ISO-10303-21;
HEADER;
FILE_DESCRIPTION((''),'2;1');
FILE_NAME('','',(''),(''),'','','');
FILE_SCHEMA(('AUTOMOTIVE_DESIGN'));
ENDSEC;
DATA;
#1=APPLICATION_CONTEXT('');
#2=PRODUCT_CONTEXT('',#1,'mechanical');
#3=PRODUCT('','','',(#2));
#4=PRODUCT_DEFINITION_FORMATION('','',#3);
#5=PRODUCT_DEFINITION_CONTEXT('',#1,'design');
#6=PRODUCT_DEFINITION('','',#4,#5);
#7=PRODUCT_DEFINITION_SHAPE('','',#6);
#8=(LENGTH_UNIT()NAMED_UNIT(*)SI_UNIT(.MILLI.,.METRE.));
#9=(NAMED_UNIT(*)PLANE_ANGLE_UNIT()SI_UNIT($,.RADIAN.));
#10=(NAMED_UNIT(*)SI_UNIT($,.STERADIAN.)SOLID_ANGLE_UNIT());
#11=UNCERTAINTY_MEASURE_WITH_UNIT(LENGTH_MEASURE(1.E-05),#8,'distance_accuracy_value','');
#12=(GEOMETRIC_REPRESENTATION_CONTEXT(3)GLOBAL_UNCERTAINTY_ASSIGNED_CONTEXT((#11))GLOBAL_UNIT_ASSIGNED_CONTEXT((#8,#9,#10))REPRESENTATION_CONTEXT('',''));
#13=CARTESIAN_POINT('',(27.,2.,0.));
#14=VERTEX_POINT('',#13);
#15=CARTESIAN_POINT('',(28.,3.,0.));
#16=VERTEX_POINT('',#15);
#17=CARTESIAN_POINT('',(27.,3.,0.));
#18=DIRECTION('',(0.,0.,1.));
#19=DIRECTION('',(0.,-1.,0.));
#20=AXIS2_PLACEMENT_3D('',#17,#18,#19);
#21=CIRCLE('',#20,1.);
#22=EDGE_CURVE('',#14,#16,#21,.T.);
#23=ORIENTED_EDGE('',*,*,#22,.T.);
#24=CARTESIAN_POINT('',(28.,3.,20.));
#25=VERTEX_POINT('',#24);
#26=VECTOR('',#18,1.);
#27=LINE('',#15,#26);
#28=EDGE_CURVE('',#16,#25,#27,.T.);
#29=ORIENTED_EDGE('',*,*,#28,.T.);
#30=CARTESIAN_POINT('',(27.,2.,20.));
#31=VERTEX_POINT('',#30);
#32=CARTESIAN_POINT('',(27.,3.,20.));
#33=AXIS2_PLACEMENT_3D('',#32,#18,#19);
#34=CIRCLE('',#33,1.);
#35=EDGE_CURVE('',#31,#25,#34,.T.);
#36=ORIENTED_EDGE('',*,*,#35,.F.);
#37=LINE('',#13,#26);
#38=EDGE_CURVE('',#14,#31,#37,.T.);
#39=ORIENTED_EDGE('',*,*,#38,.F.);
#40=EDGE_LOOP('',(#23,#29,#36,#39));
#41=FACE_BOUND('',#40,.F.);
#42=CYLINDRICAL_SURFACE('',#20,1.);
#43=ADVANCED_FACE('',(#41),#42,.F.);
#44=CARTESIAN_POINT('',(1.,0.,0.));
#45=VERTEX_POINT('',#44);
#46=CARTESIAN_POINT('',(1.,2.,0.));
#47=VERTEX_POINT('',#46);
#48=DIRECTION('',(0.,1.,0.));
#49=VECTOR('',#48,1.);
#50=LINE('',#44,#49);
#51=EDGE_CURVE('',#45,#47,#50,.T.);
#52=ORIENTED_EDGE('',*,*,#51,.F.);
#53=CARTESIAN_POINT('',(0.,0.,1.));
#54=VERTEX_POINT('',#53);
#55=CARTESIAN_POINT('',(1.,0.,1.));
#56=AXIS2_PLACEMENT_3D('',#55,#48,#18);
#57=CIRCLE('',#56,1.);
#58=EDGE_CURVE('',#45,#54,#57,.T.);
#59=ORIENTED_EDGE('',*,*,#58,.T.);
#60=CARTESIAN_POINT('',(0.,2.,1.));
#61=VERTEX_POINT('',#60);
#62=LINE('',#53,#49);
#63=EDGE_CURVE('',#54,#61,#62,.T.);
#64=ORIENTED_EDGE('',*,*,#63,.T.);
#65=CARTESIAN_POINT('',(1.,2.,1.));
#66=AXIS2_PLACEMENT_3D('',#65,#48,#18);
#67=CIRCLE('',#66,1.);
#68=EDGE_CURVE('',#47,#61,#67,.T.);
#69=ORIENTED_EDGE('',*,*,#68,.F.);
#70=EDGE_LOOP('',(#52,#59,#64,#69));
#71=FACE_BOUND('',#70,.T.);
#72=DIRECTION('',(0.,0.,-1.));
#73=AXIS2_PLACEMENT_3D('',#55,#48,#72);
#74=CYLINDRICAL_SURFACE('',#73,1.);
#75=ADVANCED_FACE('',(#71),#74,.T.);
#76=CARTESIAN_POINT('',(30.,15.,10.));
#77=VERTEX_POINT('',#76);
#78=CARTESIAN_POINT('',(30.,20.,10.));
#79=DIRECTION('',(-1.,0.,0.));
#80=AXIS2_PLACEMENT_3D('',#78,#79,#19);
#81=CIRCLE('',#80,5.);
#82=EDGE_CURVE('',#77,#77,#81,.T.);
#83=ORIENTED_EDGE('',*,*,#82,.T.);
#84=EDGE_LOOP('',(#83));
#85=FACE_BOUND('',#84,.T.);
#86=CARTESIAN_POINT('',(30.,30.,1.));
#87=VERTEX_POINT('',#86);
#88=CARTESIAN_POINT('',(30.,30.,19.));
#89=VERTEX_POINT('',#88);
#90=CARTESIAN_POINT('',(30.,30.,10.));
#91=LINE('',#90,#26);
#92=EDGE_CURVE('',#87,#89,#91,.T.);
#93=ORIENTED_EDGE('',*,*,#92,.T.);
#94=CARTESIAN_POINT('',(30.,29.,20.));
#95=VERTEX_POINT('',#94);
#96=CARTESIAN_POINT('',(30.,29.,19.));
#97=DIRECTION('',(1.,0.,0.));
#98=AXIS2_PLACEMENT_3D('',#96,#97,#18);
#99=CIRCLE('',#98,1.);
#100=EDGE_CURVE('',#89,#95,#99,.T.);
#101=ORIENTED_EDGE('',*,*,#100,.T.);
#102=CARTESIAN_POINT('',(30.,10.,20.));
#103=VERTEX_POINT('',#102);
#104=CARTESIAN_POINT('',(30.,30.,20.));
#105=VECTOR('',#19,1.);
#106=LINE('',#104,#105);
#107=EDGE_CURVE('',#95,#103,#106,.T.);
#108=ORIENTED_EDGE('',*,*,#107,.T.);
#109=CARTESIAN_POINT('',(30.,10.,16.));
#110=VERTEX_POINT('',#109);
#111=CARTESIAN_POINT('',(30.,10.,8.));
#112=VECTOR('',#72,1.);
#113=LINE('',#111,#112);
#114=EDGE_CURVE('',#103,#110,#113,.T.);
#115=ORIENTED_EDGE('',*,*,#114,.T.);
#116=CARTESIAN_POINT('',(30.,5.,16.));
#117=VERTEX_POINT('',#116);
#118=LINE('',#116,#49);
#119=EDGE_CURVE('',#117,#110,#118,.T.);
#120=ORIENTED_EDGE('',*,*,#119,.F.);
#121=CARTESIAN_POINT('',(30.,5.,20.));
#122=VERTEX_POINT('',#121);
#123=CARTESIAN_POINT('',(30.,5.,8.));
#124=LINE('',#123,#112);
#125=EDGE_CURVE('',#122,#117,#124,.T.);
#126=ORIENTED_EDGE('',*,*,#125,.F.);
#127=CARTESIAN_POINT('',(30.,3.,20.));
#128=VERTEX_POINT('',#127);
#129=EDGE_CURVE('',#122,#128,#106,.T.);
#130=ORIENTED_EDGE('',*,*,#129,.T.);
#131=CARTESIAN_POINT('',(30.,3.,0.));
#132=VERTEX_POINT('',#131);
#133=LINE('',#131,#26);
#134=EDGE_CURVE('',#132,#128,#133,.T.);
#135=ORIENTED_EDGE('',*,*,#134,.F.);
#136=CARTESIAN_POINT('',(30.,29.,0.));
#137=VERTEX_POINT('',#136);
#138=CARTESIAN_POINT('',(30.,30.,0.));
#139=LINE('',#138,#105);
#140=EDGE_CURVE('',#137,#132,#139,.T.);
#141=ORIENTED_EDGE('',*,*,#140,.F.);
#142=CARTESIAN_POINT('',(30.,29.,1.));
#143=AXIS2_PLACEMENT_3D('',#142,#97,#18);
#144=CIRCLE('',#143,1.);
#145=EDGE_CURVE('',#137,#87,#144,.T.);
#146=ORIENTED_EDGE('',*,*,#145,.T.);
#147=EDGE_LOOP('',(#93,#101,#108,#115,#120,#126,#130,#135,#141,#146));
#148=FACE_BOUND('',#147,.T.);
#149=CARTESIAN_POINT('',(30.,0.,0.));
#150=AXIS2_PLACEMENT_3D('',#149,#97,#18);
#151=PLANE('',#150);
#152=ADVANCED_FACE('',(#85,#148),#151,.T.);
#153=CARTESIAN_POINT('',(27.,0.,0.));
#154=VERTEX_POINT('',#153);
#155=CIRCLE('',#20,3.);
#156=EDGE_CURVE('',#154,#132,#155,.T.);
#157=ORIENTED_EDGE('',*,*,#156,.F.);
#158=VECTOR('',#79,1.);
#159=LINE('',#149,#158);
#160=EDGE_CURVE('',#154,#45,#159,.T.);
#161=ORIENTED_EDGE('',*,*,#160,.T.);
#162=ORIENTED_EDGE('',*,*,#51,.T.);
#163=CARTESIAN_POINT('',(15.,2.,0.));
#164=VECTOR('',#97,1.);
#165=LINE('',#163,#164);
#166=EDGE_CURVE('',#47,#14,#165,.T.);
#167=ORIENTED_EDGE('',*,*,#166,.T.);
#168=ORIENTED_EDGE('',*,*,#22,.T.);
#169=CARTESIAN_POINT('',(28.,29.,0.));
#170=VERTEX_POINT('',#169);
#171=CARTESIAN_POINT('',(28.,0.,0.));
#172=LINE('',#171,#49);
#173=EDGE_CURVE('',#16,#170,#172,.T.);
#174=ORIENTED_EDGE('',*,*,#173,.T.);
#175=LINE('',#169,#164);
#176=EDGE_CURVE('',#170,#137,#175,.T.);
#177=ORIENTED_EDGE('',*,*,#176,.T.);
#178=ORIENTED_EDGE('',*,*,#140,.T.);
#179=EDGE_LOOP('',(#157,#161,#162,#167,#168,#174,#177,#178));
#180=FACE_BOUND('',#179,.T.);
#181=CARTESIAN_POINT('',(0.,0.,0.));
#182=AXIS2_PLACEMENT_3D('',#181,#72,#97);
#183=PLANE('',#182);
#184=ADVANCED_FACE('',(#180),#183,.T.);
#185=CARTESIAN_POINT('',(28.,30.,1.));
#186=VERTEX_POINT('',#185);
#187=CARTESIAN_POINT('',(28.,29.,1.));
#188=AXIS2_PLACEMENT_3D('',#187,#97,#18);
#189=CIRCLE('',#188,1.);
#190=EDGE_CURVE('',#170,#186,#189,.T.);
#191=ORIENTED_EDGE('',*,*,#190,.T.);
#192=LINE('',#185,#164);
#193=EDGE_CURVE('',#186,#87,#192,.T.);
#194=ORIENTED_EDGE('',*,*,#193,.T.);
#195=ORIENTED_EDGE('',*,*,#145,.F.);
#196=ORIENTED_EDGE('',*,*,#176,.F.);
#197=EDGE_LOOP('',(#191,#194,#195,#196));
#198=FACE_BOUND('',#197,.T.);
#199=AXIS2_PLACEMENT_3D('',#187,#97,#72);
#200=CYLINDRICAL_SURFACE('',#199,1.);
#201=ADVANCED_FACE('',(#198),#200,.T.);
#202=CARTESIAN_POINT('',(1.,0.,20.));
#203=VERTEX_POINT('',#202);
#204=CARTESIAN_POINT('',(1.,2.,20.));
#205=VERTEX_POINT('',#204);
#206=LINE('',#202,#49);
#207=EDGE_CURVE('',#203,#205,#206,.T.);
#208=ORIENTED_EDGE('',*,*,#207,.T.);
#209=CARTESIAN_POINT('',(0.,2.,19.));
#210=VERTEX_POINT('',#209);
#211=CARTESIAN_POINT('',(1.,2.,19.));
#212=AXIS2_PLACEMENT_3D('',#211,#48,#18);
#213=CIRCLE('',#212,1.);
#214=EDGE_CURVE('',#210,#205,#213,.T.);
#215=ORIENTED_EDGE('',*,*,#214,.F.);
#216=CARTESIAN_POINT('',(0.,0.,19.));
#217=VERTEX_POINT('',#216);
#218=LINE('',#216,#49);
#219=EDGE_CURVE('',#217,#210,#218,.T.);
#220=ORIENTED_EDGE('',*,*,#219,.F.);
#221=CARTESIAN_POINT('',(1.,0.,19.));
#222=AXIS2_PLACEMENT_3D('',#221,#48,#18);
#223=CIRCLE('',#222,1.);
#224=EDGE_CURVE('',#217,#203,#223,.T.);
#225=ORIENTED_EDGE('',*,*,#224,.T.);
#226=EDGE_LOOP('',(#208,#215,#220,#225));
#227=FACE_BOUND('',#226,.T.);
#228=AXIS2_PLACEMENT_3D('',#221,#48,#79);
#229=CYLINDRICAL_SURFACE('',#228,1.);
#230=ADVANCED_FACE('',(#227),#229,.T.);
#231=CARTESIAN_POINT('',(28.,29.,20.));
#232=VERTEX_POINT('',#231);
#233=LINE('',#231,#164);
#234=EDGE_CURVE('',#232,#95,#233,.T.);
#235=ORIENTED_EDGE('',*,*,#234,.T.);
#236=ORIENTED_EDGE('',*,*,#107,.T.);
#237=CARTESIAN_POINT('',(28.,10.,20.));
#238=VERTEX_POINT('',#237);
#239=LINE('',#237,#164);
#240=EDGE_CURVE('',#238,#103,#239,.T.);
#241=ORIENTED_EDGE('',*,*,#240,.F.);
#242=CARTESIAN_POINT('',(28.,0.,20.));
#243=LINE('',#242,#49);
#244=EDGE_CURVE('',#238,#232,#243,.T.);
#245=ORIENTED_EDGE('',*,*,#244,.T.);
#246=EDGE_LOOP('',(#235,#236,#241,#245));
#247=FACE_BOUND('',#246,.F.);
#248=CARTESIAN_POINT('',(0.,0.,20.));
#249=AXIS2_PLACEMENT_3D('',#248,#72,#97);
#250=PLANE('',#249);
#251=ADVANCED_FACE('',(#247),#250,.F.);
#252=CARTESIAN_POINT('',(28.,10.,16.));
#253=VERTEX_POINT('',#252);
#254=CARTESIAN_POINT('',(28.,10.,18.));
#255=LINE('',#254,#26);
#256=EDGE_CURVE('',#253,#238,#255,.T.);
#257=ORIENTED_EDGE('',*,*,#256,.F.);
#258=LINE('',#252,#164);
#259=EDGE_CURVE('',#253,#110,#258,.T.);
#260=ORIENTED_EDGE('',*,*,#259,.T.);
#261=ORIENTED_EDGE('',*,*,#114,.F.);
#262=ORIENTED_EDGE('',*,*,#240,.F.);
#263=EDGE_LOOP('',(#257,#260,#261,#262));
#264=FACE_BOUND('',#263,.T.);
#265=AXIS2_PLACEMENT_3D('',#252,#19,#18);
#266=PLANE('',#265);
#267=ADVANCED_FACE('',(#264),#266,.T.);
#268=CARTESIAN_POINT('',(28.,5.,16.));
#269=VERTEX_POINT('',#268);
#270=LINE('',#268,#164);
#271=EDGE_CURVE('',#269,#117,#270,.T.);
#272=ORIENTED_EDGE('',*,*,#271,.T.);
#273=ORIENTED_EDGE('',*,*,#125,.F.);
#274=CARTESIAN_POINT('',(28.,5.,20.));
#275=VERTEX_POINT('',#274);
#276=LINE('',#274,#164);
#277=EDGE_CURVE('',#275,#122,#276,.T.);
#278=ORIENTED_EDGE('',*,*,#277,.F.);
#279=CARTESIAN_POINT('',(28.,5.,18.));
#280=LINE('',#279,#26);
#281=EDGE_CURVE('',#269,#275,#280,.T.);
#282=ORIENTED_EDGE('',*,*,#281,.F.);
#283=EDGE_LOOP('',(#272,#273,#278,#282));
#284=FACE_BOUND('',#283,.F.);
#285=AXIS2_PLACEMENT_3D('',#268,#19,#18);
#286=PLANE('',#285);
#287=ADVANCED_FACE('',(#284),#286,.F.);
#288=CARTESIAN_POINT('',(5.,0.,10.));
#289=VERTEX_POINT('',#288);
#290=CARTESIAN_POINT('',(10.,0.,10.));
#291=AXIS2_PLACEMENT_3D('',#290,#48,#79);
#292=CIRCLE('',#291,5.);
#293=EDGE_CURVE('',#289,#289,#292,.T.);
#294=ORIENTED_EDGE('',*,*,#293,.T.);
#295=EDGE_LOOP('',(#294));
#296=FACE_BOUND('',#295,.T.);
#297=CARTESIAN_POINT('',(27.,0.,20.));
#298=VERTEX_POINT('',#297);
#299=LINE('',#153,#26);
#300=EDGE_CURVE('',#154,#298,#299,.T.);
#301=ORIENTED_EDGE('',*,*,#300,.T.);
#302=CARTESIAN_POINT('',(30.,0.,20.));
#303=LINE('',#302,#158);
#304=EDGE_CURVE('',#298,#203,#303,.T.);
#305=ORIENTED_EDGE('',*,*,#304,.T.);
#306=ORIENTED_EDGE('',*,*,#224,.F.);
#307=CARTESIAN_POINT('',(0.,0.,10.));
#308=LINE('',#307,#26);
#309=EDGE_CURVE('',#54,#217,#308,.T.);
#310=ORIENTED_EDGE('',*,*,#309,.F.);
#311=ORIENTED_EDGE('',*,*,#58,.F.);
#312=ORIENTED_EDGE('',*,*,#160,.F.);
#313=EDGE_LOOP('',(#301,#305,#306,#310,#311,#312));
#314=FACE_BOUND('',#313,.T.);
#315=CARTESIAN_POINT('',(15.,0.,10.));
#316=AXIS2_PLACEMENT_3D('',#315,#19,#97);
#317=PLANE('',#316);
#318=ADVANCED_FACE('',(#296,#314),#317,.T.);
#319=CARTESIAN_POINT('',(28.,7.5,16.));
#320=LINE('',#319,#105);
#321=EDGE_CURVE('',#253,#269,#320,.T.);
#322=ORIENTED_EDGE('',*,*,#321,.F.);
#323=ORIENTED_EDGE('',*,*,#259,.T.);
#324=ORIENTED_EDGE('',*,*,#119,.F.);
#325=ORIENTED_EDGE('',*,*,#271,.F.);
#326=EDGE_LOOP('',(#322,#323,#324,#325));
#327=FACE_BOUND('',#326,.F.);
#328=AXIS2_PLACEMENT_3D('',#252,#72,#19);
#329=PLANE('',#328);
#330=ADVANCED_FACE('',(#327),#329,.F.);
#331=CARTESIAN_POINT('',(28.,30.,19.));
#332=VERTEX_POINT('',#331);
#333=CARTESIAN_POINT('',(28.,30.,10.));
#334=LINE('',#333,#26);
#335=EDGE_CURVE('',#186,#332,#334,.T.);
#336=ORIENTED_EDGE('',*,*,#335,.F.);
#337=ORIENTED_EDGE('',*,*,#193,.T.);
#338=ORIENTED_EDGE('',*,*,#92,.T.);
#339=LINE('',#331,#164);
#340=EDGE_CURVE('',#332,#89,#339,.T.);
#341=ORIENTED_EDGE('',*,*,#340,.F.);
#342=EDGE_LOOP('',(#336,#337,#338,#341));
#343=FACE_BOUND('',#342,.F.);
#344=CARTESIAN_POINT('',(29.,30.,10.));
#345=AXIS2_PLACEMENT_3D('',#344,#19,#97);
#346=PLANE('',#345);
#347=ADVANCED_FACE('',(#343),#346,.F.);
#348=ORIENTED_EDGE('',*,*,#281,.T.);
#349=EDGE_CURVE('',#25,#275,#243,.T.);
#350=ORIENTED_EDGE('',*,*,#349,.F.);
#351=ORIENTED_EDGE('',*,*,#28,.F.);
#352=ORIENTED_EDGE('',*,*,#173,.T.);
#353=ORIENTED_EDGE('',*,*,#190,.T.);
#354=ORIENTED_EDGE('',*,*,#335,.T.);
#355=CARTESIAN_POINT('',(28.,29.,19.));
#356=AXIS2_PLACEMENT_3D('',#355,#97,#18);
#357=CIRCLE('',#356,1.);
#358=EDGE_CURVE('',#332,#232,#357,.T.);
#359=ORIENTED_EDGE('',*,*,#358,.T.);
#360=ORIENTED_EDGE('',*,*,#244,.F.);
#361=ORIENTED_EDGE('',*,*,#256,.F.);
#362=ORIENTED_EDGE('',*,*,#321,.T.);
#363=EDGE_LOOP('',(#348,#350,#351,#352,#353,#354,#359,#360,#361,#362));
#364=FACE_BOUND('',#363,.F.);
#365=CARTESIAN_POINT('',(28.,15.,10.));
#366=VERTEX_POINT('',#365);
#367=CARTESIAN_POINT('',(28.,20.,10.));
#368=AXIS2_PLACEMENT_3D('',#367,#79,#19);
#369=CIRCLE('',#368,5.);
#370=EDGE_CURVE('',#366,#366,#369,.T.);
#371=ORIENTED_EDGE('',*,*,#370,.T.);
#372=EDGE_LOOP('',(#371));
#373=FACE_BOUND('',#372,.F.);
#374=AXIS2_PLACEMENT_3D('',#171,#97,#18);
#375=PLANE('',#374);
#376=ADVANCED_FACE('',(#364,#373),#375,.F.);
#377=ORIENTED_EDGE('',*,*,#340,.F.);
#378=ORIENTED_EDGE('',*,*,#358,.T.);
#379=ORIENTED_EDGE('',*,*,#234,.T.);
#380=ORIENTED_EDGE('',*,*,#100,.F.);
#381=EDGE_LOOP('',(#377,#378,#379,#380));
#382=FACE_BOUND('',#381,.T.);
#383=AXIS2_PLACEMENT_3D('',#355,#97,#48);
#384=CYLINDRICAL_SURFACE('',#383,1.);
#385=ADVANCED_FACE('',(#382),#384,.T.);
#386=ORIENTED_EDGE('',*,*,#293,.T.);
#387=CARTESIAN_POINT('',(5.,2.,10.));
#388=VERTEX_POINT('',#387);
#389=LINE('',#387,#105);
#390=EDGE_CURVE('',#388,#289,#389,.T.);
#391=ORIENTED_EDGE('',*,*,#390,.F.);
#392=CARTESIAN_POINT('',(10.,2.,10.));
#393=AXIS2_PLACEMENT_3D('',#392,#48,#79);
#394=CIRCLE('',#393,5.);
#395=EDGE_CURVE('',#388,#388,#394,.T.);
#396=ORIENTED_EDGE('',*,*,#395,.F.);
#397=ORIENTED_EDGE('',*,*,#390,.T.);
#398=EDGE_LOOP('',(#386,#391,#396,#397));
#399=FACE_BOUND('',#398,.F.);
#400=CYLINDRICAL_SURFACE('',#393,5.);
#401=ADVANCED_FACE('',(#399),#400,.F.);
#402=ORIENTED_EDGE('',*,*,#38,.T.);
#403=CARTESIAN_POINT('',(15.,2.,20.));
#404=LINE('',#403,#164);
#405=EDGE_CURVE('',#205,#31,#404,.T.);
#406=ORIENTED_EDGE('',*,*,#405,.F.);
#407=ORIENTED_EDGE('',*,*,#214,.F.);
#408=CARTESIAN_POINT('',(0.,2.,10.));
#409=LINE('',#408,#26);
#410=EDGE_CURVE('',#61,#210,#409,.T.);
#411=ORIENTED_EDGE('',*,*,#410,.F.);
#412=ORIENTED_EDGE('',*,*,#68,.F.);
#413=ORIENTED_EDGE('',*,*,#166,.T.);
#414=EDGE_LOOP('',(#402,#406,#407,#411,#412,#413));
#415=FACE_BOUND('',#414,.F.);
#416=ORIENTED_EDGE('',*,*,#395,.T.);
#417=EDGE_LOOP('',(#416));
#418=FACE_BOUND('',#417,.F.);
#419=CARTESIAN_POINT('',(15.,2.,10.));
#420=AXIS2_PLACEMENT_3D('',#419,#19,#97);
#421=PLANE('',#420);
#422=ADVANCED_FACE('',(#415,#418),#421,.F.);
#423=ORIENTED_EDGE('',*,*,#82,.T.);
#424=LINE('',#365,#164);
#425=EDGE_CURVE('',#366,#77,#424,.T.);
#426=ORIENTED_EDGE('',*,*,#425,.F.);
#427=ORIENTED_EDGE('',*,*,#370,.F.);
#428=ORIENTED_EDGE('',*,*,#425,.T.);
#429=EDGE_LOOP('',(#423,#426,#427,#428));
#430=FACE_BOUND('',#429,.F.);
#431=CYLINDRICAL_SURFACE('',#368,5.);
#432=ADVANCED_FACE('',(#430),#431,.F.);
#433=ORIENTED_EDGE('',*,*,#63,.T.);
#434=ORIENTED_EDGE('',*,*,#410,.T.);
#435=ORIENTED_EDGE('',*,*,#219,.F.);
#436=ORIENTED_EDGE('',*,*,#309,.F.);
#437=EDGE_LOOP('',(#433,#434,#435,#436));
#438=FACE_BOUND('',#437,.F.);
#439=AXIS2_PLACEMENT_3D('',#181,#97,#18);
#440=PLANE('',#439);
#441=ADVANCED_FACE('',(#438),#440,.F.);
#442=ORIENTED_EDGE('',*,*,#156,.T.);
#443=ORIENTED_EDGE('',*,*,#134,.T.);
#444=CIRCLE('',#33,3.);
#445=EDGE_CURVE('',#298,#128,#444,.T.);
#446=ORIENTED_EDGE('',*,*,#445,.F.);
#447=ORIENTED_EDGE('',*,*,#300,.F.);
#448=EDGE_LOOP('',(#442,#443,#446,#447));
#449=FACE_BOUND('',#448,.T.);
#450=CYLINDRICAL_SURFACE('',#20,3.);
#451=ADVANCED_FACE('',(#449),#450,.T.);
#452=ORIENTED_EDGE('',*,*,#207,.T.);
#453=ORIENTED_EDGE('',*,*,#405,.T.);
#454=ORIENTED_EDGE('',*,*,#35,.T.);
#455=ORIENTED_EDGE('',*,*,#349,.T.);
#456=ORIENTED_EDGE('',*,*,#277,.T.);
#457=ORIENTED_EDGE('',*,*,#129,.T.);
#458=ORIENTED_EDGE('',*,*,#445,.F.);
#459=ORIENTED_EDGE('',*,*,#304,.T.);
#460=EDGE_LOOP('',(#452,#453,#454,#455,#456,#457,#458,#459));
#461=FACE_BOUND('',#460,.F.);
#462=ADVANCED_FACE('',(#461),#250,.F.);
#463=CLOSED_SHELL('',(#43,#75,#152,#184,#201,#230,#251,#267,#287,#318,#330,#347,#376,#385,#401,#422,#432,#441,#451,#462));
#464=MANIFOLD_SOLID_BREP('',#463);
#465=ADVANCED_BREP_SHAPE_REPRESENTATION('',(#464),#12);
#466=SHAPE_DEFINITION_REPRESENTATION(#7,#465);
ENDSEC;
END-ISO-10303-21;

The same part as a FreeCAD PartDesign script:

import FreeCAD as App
import Part
import Sketcher
from FreeCAD import Vector


def edges_at(feature, points):
    """Names of the edges that pass closest to the given points."""
    edges = feature.Shape.Edges
    near = lambda p: min(range(len(edges)), key=lambda i: edges[i].distToShape(Part.Vertex(*p))[0])
    return sorted({f"Edge{near(p) + 1}" for p in points})


def add_polygon(sketch, points):
    """Adds a closed chain of lines whose ends are joined by coincident constraints."""
    first, n = sketch.GeometryCount, len(points)
    for a, b in zip(points, points[1:] + points[:1]):
        sketch.addGeometry(Part.LineSegment(App.Vector(*a, 0), App.Vector(*b, 0)), False)
    for i in range(n):
        sketch.addConstraint(Sketcher.Constraint("Coincident", first + i, 2, first + (i + 1) % n, 1))

doc = App.newDocument("Part")
body = doc.addObject("PartDesign::Body", "Body")

# Sketch on XZ plane
sketch1 = body.newObject("Sketcher::SketchObject", "Sketch")
sketch1.AttachmentSupport = (doc.getObject("XZ_Plane"), [""])
sketch1.MapMode = "FlatFace"
add_polygon(sketch1, [(0, 20), (0, 0), (30, 0), (30, 20)])  # lines 0-3
sketch1.addConstraint([
    Sketcher.Constraint("Vertical", 0),
    Sketcher.Constraint("Horizontal", 1),
    Sketcher.Constraint("Vertical", 2),
    Sketcher.Constraint("Horizontal", 3),
    Sketcher.Constraint("Coincident", 0, 2, -1, 1),
    Sketcher.Constraint("DistanceX", 1, 1, 1, 2, 30.0),
    Sketcher.Constraint("DistanceY", 0, 2, 0, 1, 20.0),
])
pad1 = body.newObject("PartDesign::Pad", "Pad")
pad1.Profile = sketch1
pad1.Length = 2
pad1.Reversed = True

# Sketch on XZ plane
sketch2 = body.newObject("Sketcher::SketchObject", "Sketch001")
sketch2.AttachmentSupport = (doc.getObject("XZ_Plane"), [""])
sketch2.MapMode = "FlatFace"
add_polygon(sketch2, [(28, 20), (28, 0), (30, 0), (30, 20)])  # lines 0-3
sketch2.addConstraint([
    Sketcher.Constraint("Vertical", 0),
    Sketcher.Constraint("Horizontal", 1),
    Sketcher.Constraint("Vertical", 2),
    Sketcher.Constraint("Horizontal", 3),
    Sketcher.Constraint("PointOnObject", 0, 2, -1),
    Sketcher.Constraint("DistanceX", 1, 1, 1, 2, 2.0),
    Sketcher.Constraint("DistanceY", 0, 2, 0, 1, 20.0),
    Sketcher.Constraint("DistanceX", -1, 1, 0, 2, 28.0),
])
pad2 = body.newObject("PartDesign::Pad", "Pad001")
pad2.Profile = sketch2
pad2.Length = 30
pad2.Reversed = True

# Sketch on YZ plane
sketch3 = body.newObject("Sketcher::SketchObject", "Sketch002")
sketch3.AttachmentSupport = (doc.getObject("YZ_Plane"), [""])
sketch3.MapMode = "FlatFace"
sketch3.AttachmentOffset = App.Placement(Vector(0, 0, 28), App.Rotation())
sketch3.addGeometry(Part.Circle(Vector(20, 10, 0), Vector(0, 0, 1), 5), False)  # 0
add_polygon(sketch3, [(10, 20), (10, 16), (5, 16), (5, 20)])  # lines 1-4
sketch3.addConstraint([
    Sketcher.Constraint("Vertical", 1),
    Sketcher.Constraint("Horizontal", 2),
    Sketcher.Constraint("Vertical", 3),
    Sketcher.Constraint("Horizontal", 4),
    Sketcher.Constraint("Diameter", 0, 10.0),
    Sketcher.Constraint("DistanceX", 2, 2, 2, 1, 5.0),
    Sketcher.Constraint("DistanceY", 1, 2, 1, 1, 4.0),
    Sketcher.Constraint("DistanceX", -1, 1, 0, 3, 20.0),
    Sketcher.Constraint("DistanceY", -1, 1, 0, 3, 10.0),
    Sketcher.Constraint("DistanceX", -1, 1, 1, 2, 10.0),
    Sketcher.Constraint("DistanceY", -1, 1, 1, 2, 16.0),
])
pocket1 = body.newObject("PartDesign::Pocket", "Pocket")
pocket1.Profile = sketch3
pocket1.Type = "ThroughAll"
pocket1.Reversed = True

# Sketch on XZ plane
sketch4 = body.newObject("Sketcher::SketchObject", "Sketch003")
sketch4.AttachmentSupport = (doc.getObject("XZ_Plane"), [""])
sketch4.MapMode = "FlatFace"
sketch4.AttachmentOffset = App.Placement(Vector(0, 0, -2), App.Rotation())
sketch4.addGeometry(Part.Circle(Vector(10, 10, 0), Vector(0, 0, 1), 5), False)
sketch4.addConstraint([
    Sketcher.Constraint("Diameter", 0, 10.0),
    Sketcher.Constraint("DistanceX", -1, 1, 0, 3, 10.0),
    Sketcher.Constraint("DistanceY", -1, 1, 0, 3, 10.0),
])
pocket2 = body.newObject("PartDesign::Pocket", "Pocket001")
pocket2.Profile = sketch4
pocket2.Length = 25
pocket2.Reversed = True
doc.recompute()

fillet = body.newObject("PartDesign::Fillet", "Fillet")
fillet.Base = (pocket2, edges_at(pocket2, [(30, 0, 10)]))
fillet.Radius = 3
doc.recompute()

fillet2 = body.newObject("PartDesign::Fillet", "Fillet001")
fillet2.Base = (fillet, edges_at(fillet, [
    (0, 1, 20),
    (28, 2, 10),
    (29, 30, 20),
    (0, 1, 0),
    (29, 30, 0),
]))
fillet2.Radius = 1

doc.recompute()
